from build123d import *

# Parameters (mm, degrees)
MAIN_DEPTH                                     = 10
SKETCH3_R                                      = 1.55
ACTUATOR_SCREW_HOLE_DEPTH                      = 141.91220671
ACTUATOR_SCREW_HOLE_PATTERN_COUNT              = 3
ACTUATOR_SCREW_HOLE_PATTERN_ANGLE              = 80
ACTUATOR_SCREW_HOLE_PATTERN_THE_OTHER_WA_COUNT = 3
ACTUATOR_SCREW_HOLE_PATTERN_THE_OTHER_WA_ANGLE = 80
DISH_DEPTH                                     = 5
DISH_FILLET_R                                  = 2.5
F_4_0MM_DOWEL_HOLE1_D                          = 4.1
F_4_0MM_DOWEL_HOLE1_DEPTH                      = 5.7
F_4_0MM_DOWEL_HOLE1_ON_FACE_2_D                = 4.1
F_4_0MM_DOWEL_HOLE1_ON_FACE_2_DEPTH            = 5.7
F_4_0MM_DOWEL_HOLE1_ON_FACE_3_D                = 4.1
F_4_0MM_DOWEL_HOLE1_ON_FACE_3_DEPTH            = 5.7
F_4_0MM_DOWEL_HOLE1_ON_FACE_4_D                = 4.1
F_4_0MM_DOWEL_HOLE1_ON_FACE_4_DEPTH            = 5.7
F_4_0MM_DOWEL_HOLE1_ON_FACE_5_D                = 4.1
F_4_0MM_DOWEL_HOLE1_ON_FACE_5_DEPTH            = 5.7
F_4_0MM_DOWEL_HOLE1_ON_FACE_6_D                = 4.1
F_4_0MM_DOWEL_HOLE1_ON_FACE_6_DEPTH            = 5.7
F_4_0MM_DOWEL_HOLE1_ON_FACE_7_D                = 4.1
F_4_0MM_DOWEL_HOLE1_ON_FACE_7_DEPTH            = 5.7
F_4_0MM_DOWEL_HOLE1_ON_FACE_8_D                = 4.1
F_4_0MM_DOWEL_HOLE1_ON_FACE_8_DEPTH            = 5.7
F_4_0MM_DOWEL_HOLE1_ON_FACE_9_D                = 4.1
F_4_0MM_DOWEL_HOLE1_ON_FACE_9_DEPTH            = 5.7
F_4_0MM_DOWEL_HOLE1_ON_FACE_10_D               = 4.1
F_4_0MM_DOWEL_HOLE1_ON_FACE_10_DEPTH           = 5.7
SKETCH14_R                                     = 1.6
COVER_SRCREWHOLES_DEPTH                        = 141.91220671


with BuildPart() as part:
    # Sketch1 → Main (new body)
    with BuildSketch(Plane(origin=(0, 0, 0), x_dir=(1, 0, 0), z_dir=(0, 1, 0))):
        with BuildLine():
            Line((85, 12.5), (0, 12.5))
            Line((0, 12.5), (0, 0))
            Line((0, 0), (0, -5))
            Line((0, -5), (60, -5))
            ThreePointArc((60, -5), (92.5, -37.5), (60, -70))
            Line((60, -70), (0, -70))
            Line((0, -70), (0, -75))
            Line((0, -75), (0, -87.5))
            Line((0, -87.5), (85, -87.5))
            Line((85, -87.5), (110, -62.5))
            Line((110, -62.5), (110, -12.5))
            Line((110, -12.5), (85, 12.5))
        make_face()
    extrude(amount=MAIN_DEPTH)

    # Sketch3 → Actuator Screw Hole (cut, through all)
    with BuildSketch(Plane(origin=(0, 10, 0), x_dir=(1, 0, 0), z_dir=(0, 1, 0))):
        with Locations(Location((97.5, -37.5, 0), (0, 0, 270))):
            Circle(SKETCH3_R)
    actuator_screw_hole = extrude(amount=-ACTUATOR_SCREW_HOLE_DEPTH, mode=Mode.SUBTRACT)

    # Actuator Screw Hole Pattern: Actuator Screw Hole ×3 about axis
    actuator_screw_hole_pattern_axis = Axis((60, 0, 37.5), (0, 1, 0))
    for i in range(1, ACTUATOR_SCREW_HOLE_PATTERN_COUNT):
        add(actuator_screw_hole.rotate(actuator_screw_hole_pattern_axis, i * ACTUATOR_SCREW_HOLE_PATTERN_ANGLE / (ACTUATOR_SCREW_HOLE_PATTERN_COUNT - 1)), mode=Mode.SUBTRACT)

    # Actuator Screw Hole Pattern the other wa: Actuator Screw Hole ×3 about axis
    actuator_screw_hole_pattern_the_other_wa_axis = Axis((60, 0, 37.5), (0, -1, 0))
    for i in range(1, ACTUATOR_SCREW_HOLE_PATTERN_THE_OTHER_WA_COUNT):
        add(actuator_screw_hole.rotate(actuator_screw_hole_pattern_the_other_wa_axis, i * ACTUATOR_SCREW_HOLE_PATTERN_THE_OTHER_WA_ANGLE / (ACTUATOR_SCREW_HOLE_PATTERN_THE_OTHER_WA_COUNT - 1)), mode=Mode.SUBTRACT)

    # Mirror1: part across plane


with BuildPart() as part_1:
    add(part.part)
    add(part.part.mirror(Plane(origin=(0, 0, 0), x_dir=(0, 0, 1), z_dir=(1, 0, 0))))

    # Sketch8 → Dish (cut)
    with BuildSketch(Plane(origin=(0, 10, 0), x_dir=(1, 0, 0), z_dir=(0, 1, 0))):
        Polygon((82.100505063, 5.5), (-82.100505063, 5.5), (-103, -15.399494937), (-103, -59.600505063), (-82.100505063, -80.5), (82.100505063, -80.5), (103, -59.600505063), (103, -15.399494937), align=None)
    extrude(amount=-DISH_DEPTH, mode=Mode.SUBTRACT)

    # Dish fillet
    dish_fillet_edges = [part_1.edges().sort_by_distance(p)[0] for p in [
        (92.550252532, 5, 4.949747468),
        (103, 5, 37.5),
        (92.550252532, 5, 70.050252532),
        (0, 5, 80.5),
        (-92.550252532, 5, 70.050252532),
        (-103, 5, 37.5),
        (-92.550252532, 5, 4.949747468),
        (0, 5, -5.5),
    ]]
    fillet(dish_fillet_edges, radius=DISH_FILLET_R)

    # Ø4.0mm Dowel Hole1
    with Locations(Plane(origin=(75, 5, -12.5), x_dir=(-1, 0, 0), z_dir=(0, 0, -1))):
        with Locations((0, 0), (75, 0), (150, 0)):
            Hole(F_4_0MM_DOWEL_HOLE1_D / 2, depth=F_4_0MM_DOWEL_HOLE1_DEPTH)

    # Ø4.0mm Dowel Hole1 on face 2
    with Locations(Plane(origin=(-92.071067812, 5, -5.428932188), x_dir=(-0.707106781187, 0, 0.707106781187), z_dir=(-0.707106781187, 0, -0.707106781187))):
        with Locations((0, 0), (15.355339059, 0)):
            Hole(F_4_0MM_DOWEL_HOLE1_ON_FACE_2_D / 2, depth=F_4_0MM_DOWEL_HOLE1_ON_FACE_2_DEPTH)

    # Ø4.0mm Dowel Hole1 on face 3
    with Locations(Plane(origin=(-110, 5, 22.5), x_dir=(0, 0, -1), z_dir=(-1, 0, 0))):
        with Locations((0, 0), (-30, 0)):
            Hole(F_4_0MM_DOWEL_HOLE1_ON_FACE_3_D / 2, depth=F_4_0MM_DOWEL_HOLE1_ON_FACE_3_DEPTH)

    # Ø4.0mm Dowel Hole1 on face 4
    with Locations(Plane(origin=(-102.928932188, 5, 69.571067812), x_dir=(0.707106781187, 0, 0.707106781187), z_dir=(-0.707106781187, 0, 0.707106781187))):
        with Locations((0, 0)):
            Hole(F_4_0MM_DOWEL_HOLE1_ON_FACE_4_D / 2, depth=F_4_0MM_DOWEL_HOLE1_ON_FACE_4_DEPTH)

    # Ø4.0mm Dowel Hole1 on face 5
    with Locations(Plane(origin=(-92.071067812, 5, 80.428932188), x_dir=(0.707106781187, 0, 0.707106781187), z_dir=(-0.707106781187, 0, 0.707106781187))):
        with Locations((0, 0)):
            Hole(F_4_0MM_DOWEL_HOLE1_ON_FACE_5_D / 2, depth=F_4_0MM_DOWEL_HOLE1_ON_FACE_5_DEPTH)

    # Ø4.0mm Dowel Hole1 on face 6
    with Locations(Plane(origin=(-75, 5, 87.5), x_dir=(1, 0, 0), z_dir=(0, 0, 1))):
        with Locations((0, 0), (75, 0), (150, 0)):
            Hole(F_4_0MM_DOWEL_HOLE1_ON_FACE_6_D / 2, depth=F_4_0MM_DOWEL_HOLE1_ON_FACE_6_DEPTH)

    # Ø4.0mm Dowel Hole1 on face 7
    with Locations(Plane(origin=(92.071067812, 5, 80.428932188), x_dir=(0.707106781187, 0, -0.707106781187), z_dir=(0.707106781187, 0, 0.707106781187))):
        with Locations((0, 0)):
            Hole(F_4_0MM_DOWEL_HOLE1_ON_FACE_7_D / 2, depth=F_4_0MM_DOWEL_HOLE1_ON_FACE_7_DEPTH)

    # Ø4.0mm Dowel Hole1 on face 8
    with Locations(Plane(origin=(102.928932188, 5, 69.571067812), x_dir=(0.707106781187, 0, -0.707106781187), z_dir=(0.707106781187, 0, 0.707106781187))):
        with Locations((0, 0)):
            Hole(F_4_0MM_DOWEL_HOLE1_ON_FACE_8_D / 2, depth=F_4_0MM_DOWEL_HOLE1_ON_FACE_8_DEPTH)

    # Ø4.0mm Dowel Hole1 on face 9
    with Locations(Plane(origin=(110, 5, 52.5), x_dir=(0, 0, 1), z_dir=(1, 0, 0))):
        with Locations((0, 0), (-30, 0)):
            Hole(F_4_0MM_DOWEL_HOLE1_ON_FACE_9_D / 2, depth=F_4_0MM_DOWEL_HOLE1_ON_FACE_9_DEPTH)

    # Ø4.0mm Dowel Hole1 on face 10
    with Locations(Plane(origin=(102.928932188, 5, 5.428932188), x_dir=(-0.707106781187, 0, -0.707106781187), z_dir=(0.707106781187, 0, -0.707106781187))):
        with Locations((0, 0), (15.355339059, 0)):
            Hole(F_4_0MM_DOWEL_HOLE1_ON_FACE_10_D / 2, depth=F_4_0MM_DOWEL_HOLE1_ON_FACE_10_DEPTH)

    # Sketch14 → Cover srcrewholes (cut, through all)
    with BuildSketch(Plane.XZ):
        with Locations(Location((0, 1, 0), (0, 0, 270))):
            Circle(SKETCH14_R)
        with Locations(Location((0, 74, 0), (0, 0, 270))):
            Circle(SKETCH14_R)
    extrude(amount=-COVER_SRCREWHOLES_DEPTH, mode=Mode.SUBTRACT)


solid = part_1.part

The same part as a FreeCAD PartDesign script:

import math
import FreeCAD as App
import Part
import Sketcher
from FreeCAD import Vector
Q = App.Units.Quantity


def edges_at(feature, points):
    """Names of the edges that pass closest to the given points."""
    edges = feature.Shape.Edges
    near = lambda p: min(range(len(edges)), key=lambda i: edges[i].distToShape(Part.Vertex(*p))[0])
    return sorted({f"Edge{near(p) + 1}" for p in points})


def add_polygon(sketch, points):
    """Adds a closed chain of lines whose ends are joined by coincident constraints."""
    first, n = sketch.GeometryCount, len(points)
    for a, b in zip(points, points[1:] + points[:1]):
        sketch.addGeometry(Part.LineSegment(App.Vector(*a, 0), App.Vector(*b, 0)), False)
    for i in range(n):
        sketch.addConstraint(Sketcher.Constraint("Coincident", first + i, 2, first + (i + 1) % n, 1))

doc = App.newDocument("Part")
body = doc.addObject("PartDesign::Body", "Body")

sketch1 = doc.addObject("Sketcher::SketchObject", "Sketch")
body.addObject(sketch1)
sketch1.AttachmentSupport = (doc.XZ_Plane, [""])
sketch1.MapMode = "FlatFace"
sketch1.addGeometry([
    Part.LineSegment(Vector(85, -12, 0), Vector(0, -12, 0)),
    Part.LineSegment(Vector(0, -12, 0), Vector(0, 5, 0)),
    Part.LineSegment(Vector(0, 5, 0), Vector(60, 5, 0)),
    Part.ArcOfCircle(Part.Circle(Vector(60, 38, 0), Vector(0, 0, 1), 32), math.radians(-90), math.radians(90)),
    Part.LineSegment(Vector(60, 70, 0), Vector(0, 70, 0)),
    Part.LineSegment(Vector(0, 70, 0), Vector(0, 88, 0)),
    Part.LineSegment(Vector(0, 88, 0), Vector(85, 88, 0)),
    Part.LineSegment(Vector(85, 88, 0), Vector(110, 62, 0)),
    Part.LineSegment(Vector(110, 62, 0), Vector(110, 12, 0)),
    Part.LineSegment(Vector(110, 12, 0), Vector(85, -12, 0)),
], False)
sketch1.addConstraint([
    Sketcher.Constraint("Coincident", 0, 2, 1, 1),
    Sketcher.Constraint("Coincident", 1, 2, 2, 1),
    Sketcher.Constraint("Tangent", 2, 2, 3, 1),
    Sketcher.Constraint("Tangent", 3, 2, 4, 1),
    Sketcher.Constraint("Coincident", 4, 2, 5, 1),
    Sketcher.Constraint("Coincident", 5, 2, 6, 1),
    Sketcher.Constraint("Coincident", 6, 2, 7, 1),
    Sketcher.Constraint("Coincident", 7, 2, 8, 1),
    Sketcher.Constraint("Coincident", 8, 2, 9, 1),
    Sketcher.Constraint("Coincident", 9, 2, 0, 1),
    Sketcher.Constraint("Horizontal", 0),
    Sketcher.Constraint("Vertical", 1),
    Sketcher.Constraint("Horizontal", 2),
    Sketcher.Constraint("Horizontal", 4),
    Sketcher.Constraint("Vertical", 5),
    Sketcher.Constraint("Horizontal", 6),
    Sketcher.Constraint("Vertical", 8),
    Sketcher.Constraint("PointOnObject", 0, 2, -2),
    Sketcher.Constraint("PointOnObject", 4, 2, -2),
    Sketcher.Constraint("Perpendicular", 7, 9),
    Sketcher.Constraint("Vertical", 6, 2, 9, 2),
    Sketcher.Constraint("Equal", 1, 5),
    Sketcher.Constraint("Equal", 7, 9),
    Sketcher.Constraint("Radius", 3, Q("32.5 mm")),
    Sketcher.Constraint("DistanceX", 0, 2, 0, 1, Q("85 mm")),
    Sketcher.Constraint("DistanceX", 2, 1, 2, 2, Q("60 mm")),
    Sketcher.Constraint("DistanceY", 8, 2, 8, 1, Q("50 mm")),
    Sketcher.Constraint("DistanceY", 1, 1, 1, 2, Q("17.5 mm")),
    Sketcher.Constraint("DistanceY", -1, 1, 1, 2, Q("5 mm")),
])
pad1 = doc.addObject("PartDesign::Pad", "Pad")
body.addObject(pad1)
pad1.Profile = sketch1
pad1.Length = 10
pad1.Reversed = True

sketch2 = doc.addObject("Sketcher::SketchObject", "Sketch001")
body.addObject(sketch2)
sketch2.AttachmentSupport = (doc.XZ_Plane, [""])
sketch2.MapMode = "FlatFace"
sketch2.AttachmentOffset = App.Placement(Vector(0, 0, -10), App.Rotation())
sketch2.addGeometry(Part.Circle(Vector(97.5, 37.5, 0), Vector(0, 0, 1), 1.6), False)
sketch2.addConstraint([
    Sketcher.Constraint("Diameter", 0, Q("3.1 mm")),
    Sketcher.Constraint("DistanceX", -1, 1, 0, 3, Q("97.5 mm")),
    Sketcher.Constraint("DistanceY", -1, 1, 0, 3, Q("37.5 mm")),
])
pocket1 = doc.addObject("PartDesign::Pocket", "Pocket")
body.addObject(pocket1)
pocket1.Profile = sketch2
pocket1.Type = "ThroughAll"
pocket1.Reversed = True
doc.recompute()

datumline = doc.addObject("PartDesign::Line", "DatumLine")
body.addObject(datumline)
datumline.Placement = App.Placement(Vector(60, 0, 37.5), App.Rotation(Vector(0, 0, 1), Vector(0, 1, 0)))
polarpattern = doc.addObject("PartDesign::PolarPattern", "PolarPattern")
body.addObject(polarpattern)
polarpattern.Originals = [pocket1]
polarpattern.Axis = (datumline, [""])
polarpattern.Angle = 80
polarpattern.Occurrences = 3
body.Tip = polarpattern
doc.recompute()

datumline2 = doc.addObject("PartDesign::Line", "DatumLine001")
body.addObject(datumline2)
datumline2.Placement = App.Placement(Vector(60, 0, 37.5), App.Rotation(Vector(0, 0, 1), Vector(0, -1, 0)))
polarpattern2 = doc.addObject("PartDesign::PolarPattern", "PolarPattern001")
body.addObject(polarpattern2)
polarpattern2.Originals = [pocket1]
polarpattern2.Axis = (datumline2, [""])
polarpattern2.Angle = 80
polarpattern2.Occurrences = 3
body.Tip = polarpattern2
body2 = doc.addObject("PartDesign::Body", "Body001")
doc.recompute()

body2.BaseFeature = body
doc.recompute()

mirroring = doc.addObject("Part::Mirroring", "Mirroring")
mirroring.Source = body
mirroring.Base = Vector(0, 0, 0)
mirroring.Normal = Vector(1, 0, 0)
body3 = doc.addObject("PartDesign::Body", "Body002")
body3.BaseFeature = mirroring
boolean = doc.addObject("PartDesign::Boolean", "Boolean")
body2.addObject(boolean)
boolean.Type = "Fuse"
boolean.addObjects([body3])
doc.recompute()

sketch3 = doc.addObject("Sketcher::SketchObject", "Sketch002")
body2.addObject(sketch3)
sketch3.AttachmentSupport = (doc.getObject("XZ_Plane001"), [""])
sketch3.MapMode = "FlatFace"
sketch3.AttachmentOffset = App.Placement(Vector(0, 0, -10), App.Rotation())
add_polygon(sketch3, [(82, -6), (-82, -6), (-103, 15), (-103, 60), (-82, 80), (82, 80), (103, 60), (103, 15)])
sketch3.addConstraint([
    Sketcher.Constraint("Horizontal", 0),
    Sketcher.Constraint("Vertical", 2),
    Sketcher.Constraint("Horizontal", 4),
    Sketcher.Constraint("Vertical", 6),
    Sketcher.Constraint("Symmetric", 2, 2, 5, 2, -2),
    Sketcher.Constraint("Perpendicular", 1, 3),
    Sketcher.Constraint("Perpendicular", 3, 5),
    Sketcher.Constraint("Perpendicular", 5, 7),
    Sketcher.Constraint("Horizontal", 1, 2, 6, 2),
    Sketcher.Constraint("Vertical", 0, 2, 3, 2),
    Sketcher.Constraint("Vertical", 4, 2, 7, 2),
    Sketcher.Constraint("DistanceX", 1, 2, -1, 1, Q("103 mm")),
    Sketcher.Constraint("DistanceY", 0, 2, 3, 2, Q("86 mm")),
    Sketcher.Constraint("DistanceY", 0, 2, -1, 1, Q("5.5 mm")),
    Sketcher.Constraint("DistanceX", 0, 2, 0, 1, Q("164.20101 mm")),
])
pocket2 = doc.addObject("PartDesign::Pocket", "Pocket001")
body2.addObject(pocket2)
pocket2.Profile = sketch3
pocket2.Length = 5
pocket2.Reversed = True
doc.recompute()

fillet = doc.addObject("PartDesign::Fillet", "Fillet")
body2.addObject(fillet)
fillet.Base = (pocket2, edges_at(pocket2, [
    (92.55, 5, 4.95),
    (103, 5, 37.5),
    (92.55, 5, 70.05),
    (0, 5, 80.5),
    (-92.55, 5, 70.05),
    (-103, 5, 37.5),
    (-92.55, 5, 4.95),
    (0, 5, -5.5),
]))
fillet.Radius = 2.5

sketch4 = doc.addObject("Sketcher::SketchObject", "Sketch003")
body2.addObject(sketch4)
sketch4.AttachmentSupport = (doc.getObject("XY_Plane001"), [""])
sketch4.MapMode = "FlatFace"
sketch4.AttachmentOffset = App.Placement(Vector(0, 0, -12.5), App.Rotation())
sketch4.addGeometry([
    Part.Circle(Vector(75, 5, 0), Vector(0, 0, 1), 2),
    Part.Circle(Vector(0, 5, 0), Vector(0, 0, 1), 2),
    Part.Circle(Vector(-75, 5, 0), Vector(0, 0, 1), 2),
], False)
sketch4.addConstraint([
    Sketcher.Constraint("Equal", 0, 1),
    Sketcher.Constraint("Equal", 1, 2),
    Sketcher.Constraint("Symmetric", 0, 3, 2, 3, -2),
    Sketcher.Constraint("PointOnObject", 1, 3, -2),
    Sketcher.Constraint("Horizontal", 0, 3, 1, 3),
    Sketcher.Constraint("Diameter", 0, Q("4.1 mm")),
    Sketcher.Constraint("DistanceX", -1, 1, 0, 3, Q("75 mm")),
    Sketcher.Constraint("DistanceY", -1, 1, 0, 3, Q("5 mm")),
])
doc.recompute()
hole = doc.addObject("PartDesign::Hole", "Hole")
body2.addObject(hole)
hole.Profile = sketch4
hole.ThreadType = "None"
hole.Diameter = 4.1
hole.DepthType = "Dimension"
hole.Depth = 5.7
hole.DrillPoint = "Flat"
hole.Reversed = True

sketch5 = doc.addObject("Sketcher::SketchObject", "Sketch004")
body2.addObject(sketch5)
sketch5.Placement = App.Placement(Vector(-48.75, 0, -48.75), App.Rotation(Vector(-0.707106781, 0, 0.707106781), Vector(0, 0.999999999, 0), Vector(-0.707106781, 0, -0.707106781), "ZXY"))
sketch5.addGeometry([
    Part.Circle(Vector(61.3, 5, 0), Vector(0, 0, 1), 2),
    Part.Circle(Vector(76.6, 5, 0), Vector(0, 0, 1), 2),
], False)
sketch5.addConstraint([
    Sketcher.Constraint("Equal", 0, 1),
    Sketcher.Constraint("Horizontal", 0, 3, 1, 3),
    Sketcher.Constraint("Diameter", 0, Q("4.1 mm")),
    Sketcher.Constraint("DistanceY", -1, 1, 0, 3, Q("5 mm")),
    Sketcher.Constraint("DistanceX", -1, 1, 0, 3, Q("61.265242 mm")),
    Sketcher.Constraint("DistanceX", -1, 1, 1, 3, Q("76.620581 mm")),
])
doc.recompute()
hole2 = doc.addObject("PartDesign::Hole", "Hole001")
body2.addObject(hole2)
hole2.Profile = sketch5
hole2.ThreadType = "None"
hole2.Diameter = 4.1
hole2.DepthType = "Dimension"
hole2.Depth = 5.7
hole2.DrillPoint = "Flat"

sketch6 = doc.addObject("Sketcher::SketchObject", "Sketch005")
body2.addObject(sketch6)
sketch6.AttachmentSupport = (doc.getObject("YZ_Plane001"), [""])
sketch6.MapMode = "FlatFace"
sketch6.AttachmentOffset = App.Placement(Vector(0, 0, -110), App.Rotation())
sketch6.addGeometry([
    Part.Circle(Vector(5, 22.5, 0), Vector(0, 0, 1), 2),
    Part.Circle(Vector(5, 52.5, 0), Vector(0, 0, 1), 2),
], False)
sketch6.addConstraint([
    Sketcher.Constraint("Equal", 0, 1),
    Sketcher.Constraint("Vertical", 0, 3, 1, 3),
    Sketcher.Constraint("Diameter", 0, Q("4.1 mm")),
    Sketcher.Constraint("DistanceX", -1, 1, 0, 3, Q("5 mm")),
    Sketcher.Constraint("DistanceY", 0, 3, 1, 3, Q("30 mm")),
    Sketcher.Constraint("DistanceY", -1, 1, 0, 3, Q("22.5 mm")),
])
doc.recompute()
hole3 = doc.addObject("PartDesign::Hole", "Hole002")
body2.addObject(hole3)
hole3.Profile = sketch6
hole3.ThreadType = "None"
hole3.Diameter = 4.1
hole3.DepthType = "Dimension"
hole3.Depth = 5.7
hole3.DrillPoint = "Flat"
hole3.Reversed = True

sketch7 = doc.addObject("Sketcher::SketchObject", "Sketch006")
body2.addObject(sketch7)
sketch7.Placement = App.Placement(Vector(-86.25, 0, 86.25), App.Rotation(Vector(0.707106781, 0, 0.707106781), Vector(0, 0.999999999, 0), Vector(-0.707106781, 0, 0.707106781), "ZXY"))
sketch7.addGeometry(Part.Circle(Vector(-23.6, 5, 0), Vector(0, 0, 1), 2), False)
sketch7.addConstraint([
    Sketcher.Constraint("Diameter", 0, Q("4.1 mm")),
    Sketcher.Constraint("DistanceY", -1, 1, 0, 3, Q("5 mm")),
    Sketcher.Constraint("DistanceX", 0, 3, -1, 1, Q("23.587572 mm")),
])
doc.recompute()
hole4 = doc.addObject("PartDesign::Hole", "Hole003")
body2.addObject(hole4)
hole4.Profile = sketch7
hole4.ThreadType = "None"
hole4.Diameter = 4.1
hole4.DepthType = "Dimension"
hole4.Depth = 5.7
hole4.DrillPoint = "Flat"

sketch8 = doc.addObject("Sketcher::SketchObject", "Sketch007")
body2.addObject(sketch8)
sketch8.Placement = App.Placement(Vector(-86.25, 0, 86.25), App.Rotation(Vector(0.707106781, 0, 0.707106781), Vector(0, 0.999999999, 0), Vector(-0.707106781, 0, 0.707106781), "ZXY"))
sketch8.addGeometry(Part.Circle(Vector(-8.2, 5, 0), Vector(0, 0, 1), 2), False)
sketch8.addConstraint([
    Sketcher.Constraint("Diameter", 0, Q("4.1 mm")),
    Sketcher.Constraint("DistanceY", -1, 1, 0, 3, Q("5 mm")),
    Sketcher.Constraint("DistanceX", 0, 3, -1, 1, Q("8.232233 mm")),
])
doc.recompute()
hole5 = doc.addObject("PartDesign::Hole", "Hole004")
body2.addObject(hole5)
hole5.Profile = sketch8
hole5.ThreadType = "None"
hole5.Diameter = 4.1
hole5.DepthType = "Dimension"
hole5.Depth = 5.7
hole5.DrillPoint = "Flat"

sketch9 = doc.addObject("Sketcher::SketchObject", "Sketch008")
body2.addObject(sketch9)
sketch9.AttachmentSupport = (doc.getObject("XY_Plane001"), [""])
sketch9.MapMode = "FlatFace"
sketch9.AttachmentOffset = App.Placement(Vector(0, 0, 87.5), App.Rotation())
sketch9.addGeometry([
    Part.Circle(Vector(-75, 5, 0), Vector(0, 0, 1), 2),
    Part.Circle(Vector(0, 5, 0), Vector(0, 0, 1), 2),
    Part.Circle(Vector(75, 5, 0), Vector(0, 0, 1), 2),
], False)
sketch9.addConstraint([
    Sketcher.Constraint("Equal", 0, 1),
    Sketcher.Constraint("Equal", 1, 2),
    Sketcher.Constraint("Symmetric", 0, 3, 2, 3, -2),
    Sketcher.Constraint("PointOnObject", 1, 3, -2),
    Sketcher.Constraint("Horizontal", 0, 3, 1, 3),
    Sketcher.Constraint("Diameter", 0, Q("4.1 mm")),
    Sketcher.Constraint("DistanceX", 0, 3, -1, 1, Q("75 mm")),
    Sketcher.Constraint("DistanceY", -1, 1, 0, 3, Q("5 mm")),
])
doc.recompute()
hole6 = doc.addObject("PartDesign::Hole", "Hole005")
body2.addObject(hole6)
hole6.Profile = sketch9
hole6.ThreadType = "None"
hole6.Diameter = 4.1
hole6.DepthType = "Dimension"
hole6.Depth = 5.7
hole6.DrillPoint = "Flat"

sketch10 = doc.addObject("Sketcher::SketchObject", "Sketch009")
body2.addObject(sketch10)
sketch10.Placement = App.Placement(Vector(86.25, 0, 86.25), App.Rotation(Vector(0.707106781, 0, -0.707106781), Vector(0, 0.999999999, 0), Vector(0.707106781, 0, 0.707106781), "ZXY"))
sketch10.addGeometry(Part.Circle(Vector(8.2, 5, 0), Vector(0, 0, 1), 2), False)
sketch10.addConstraint([
    Sketcher.Constraint("Diameter", 0, Q("4.1 mm")),
    Sketcher.Constraint("DistanceY", -1, 1, 0, 3, Q("5 mm")),
    Sketcher.Constraint("DistanceX", -1, 1, 0, 3, Q("8.232233 mm")),
])
doc.recompute()
hole7 = doc.addObject("PartDesign::Hole", "Hole006")
body2.addObject(hole7)
hole7.Profile = sketch10
hole7.ThreadType = "None"
hole7.Diameter = 4.1
hole7.DepthType = "Dimension"
hole7.Depth = 5.7
hole7.DrillPoint = "Flat"

sketch11 = doc.addObject("Sketcher::SketchObject", "Sketch010")
body2.addObject(sketch11)
sketch11.Placement = App.Placement(Vector(86.25, 0, 86.25), App.Rotation(Vector(0.707106781, 0, -0.707106781), Vector(0, 0.999999999, 0), Vector(0.707106781, 0, 0.707106781), "ZXY"))
sketch11.addGeometry(Part.Circle(Vector(23.6, 5, 0), Vector(0, 0, 1), 2), False)
sketch11.addConstraint([
    Sketcher.Constraint("Diameter", 0, Q("4.1 mm")),
    Sketcher.Constraint("DistanceY", -1, 1, 0, 3, Q("5 mm")),
    Sketcher.Constraint("DistanceX", -1, 1, 0, 3, Q("23.587572 mm")),
])
doc.recompute()
hole8 = doc.addObject("PartDesign::Hole", "Hole007")
body2.addObject(hole8)
hole8.Profile = sketch11
hole8.ThreadType = "None"
hole8.Diameter = 4.1
hole8.DepthType = "Dimension"
hole8.Depth = 5.7
hole8.DrillPoint = "Flat"

sketch12 = doc.addObject("Sketcher::SketchObject", "Sketch011")
body2.addObject(sketch12)
sketch12.AttachmentSupport = (doc.getObject("YZ_Plane001"), [""])
sketch12.MapMode = "FlatFace"
sketch12.AttachmentOffset = App.Placement(Vector(0, 0, 110), App.Rotation())
sketch12.addGeometry([
    Part.Circle(Vector(5, 52.5, 0), Vector(0, 0, 1), 2),
    Part.Circle(Vector(5, 22.5, 0), Vector(0, 0, 1), 2),
], False)
sketch12.addConstraint([
    Sketcher.Constraint("Equal", 0, 1),
    Sketcher.Constraint("Vertical", 0, 3, 1, 3),
    Sketcher.Constraint("Diameter", 0, Q("4.1 mm")),
    Sketcher.Constraint("DistanceX", -1, 1, 0, 3, Q("5 mm")),
    Sketcher.Constraint("DistanceY", 1, 3, 0, 3, Q("30 mm")),
    Sketcher.Constraint("DistanceY", -1, 1, 0, 3, Q("52.5 mm")),
])
doc.recompute()
hole9 = doc.addObject("PartDesign::Hole", "Hole008")
body2.addObject(hole9)
hole9.Profile = sketch12
hole9.ThreadType = "None"
hole9.Diameter = 4.1
hole9.DepthType = "Dimension"
hole9.Depth = 5.7
hole9.DrillPoint = "Flat"

sketch13 = doc.addObject("Sketcher::SketchObject", "Sketch012")
body2.addObject(sketch13)
sketch13.Placement = App.Placement(Vector(48.75, 0, -48.75), App.Rotation(Vector(-0.707106781, 0, -0.707106781), Vector(0, 0.999999999, 0), Vector(0.707106781, 0, -0.707106781), "ZXY"))
sketch13.addGeometry([
    Part.Circle(Vector(-76.6, 5, 0), Vector(0, 0, 1), 2),
    Part.Circle(Vector(-61.3, 5, 0), Vector(0, 0, 1), 2),
], False)
sketch13.addConstraint([
    Sketcher.Constraint("Equal", 0, 1),
    Sketcher.Constraint("Horizontal", 0, 3, 1, 3),
    Sketcher.Constraint("Diameter", 0, Q("4.1 mm")),
    Sketcher.Constraint("DistanceY", -1, 1, 0, 3, Q("5 mm")),
    Sketcher.Constraint("DistanceX", 0, 3, -1, 1, Q("76.620581 mm")),
    Sketcher.Constraint("DistanceX", 1, 3, -1, 1, Q("61.265242 mm")),
])
doc.recompute()
hole10 = doc.addObject("PartDesign::Hole", "Hole009")
body2.addObject(hole10)
hole10.Profile = sketch13
hole10.ThreadType = "None"
hole10.Diameter = 4.1
hole10.DepthType = "Dimension"
hole10.Depth = 5.7
hole10.DrillPoint = "Flat"

sketch14 = doc.addObject("Sketcher::SketchObject", "Sketch013")
body2.addObject(sketch14)
sketch14.AttachmentSupport = (doc.getObject("XZ_Plane001"), [""])
sketch14.MapMode = "FlatFace"
sketch14.addGeometry([
    Part.Circle(Vector(0, 1, 0), Vector(0, 0, 1), 1.6),
    Part.Circle(Vector(0, 74, 0), Vector(0, 0, 1), 1.6),
], False)
sketch14.addConstraint([
    Sketcher.Constraint("Equal", 0, 1),
    Sketcher.Constraint("PointOnObject", 0, 3, -2),
    Sketcher.Constraint("PointOnObject", 1, 3, -2),
    Sketcher.Constraint("Diameter", 0, Q("3.2 mm")),
    Sketcher.Constraint("DistanceY", -1, 1, 0, 3, Q("1 mm")),
    Sketcher.Constraint("DistanceY", -1, 1, 1, 3, Q("74 mm")),
])
pocket3 = doc.addObject("PartDesign::Pocket", "Pocket002")
body2.addObject(pocket3)
pocket3.Profile = sketch14
pocket3.Type = "ThroughAll"
mirroring.Visibility = False

doc.recompute()
